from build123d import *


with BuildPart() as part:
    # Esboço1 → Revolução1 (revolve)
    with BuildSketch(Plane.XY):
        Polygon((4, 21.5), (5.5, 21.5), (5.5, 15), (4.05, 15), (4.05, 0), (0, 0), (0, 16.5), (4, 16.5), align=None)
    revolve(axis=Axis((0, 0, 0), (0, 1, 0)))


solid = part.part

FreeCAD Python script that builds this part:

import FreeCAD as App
import Part
import Sketcher

V = App.Vector
Q = App.Units.Quantity

doc = App.newDocument("Part")
body = doc.addObject("PartDesign::Body", "Body")

# Sketch on XY plane
sketch1 = body.newObject("Sketcher::SketchObject", "Sketch")
sketch1.AttachmentSupport = (doc.getObject("XY_Plane"), [""])
sketch1.MapMode = "FlatFace"
sketch1.addGeometry(Part.LineSegment(V(5.5, 21.5, 0), V(4, 21.5, 0)), False)
sketch1.addGeometry(Part.LineSegment(V(4, 21.5, 0), V(4, 16.5, 0)), False)
sketch1.addGeometry(Part.LineSegment(V(4, 16.5, 0), V(0, 16.5, 0)), False)
sketch1.addGeometry(Part.LineSegment(V(0, 16.5, 0), V(0, 0, 0)), False)
sketch1.addGeometry(Part.LineSegment(V(0, 0, 0), V(4.05, 0, 0)), False)
sketch1.addGeometry(Part.LineSegment(V(4.05, 0, 0), V(4.05, 15, 0)), False)
sketch1.addGeometry(Part.LineSegment(V(4.05, 15, 0), V(5.5, 15, 0)), False)
sketch1.addGeometry(Part.LineSegment(V(5.5, 15, 0), V(5.5, 21.5, 0)), False)
sketch1.addConstraint(Sketcher.Constraint("Coincident", 0, 2, 1, 1))
sketch1.addConstraint(Sketcher.Constraint("Coincident", 1, 2, 2, 1))
sketch1.addConstraint(Sketcher.Constraint("Coincident", 2, 2, 3, 1))
sketch1.addConstraint(Sketcher.Constraint("Coincident", 3, 2, 4, 1))
sketch1.addConstraint(Sketcher.Constraint("Coincident", 4, 2, 5, 1))
sketch1.addConstraint(Sketcher.Constraint("Coincident", 5, 2, 6, 1))
sketch1.addConstraint(Sketcher.Constraint("Coincident", 6, 2, 7, 1))
sketch1.addConstraint(Sketcher.Constraint("Coincident", 7, 2, 0, 1))
sketch1.addConstraint(Sketcher.Constraint("Horizontal", 0))
sketch1.addConstraint(Sketcher.Constraint("Vertical", 1))
sketch1.addConstraint(Sketcher.Constraint("Horizontal", 2))
sketch1.addConstraint(Sketcher.Constraint("Vertical", 3))
sketch1.addConstraint(Sketcher.Constraint("Horizontal", 4))
sketch1.addConstraint(Sketcher.Constraint("Vertical", 5))
sketch1.addConstraint(Sketcher.Constraint("Horizontal", 6))
sketch1.addConstraint(Sketcher.Constraint("Vertical", 7))
sketch1.addConstraint(Sketcher.Constraint("Coincident", 3, 2, -1, 1))
sketch1.addConstraint(Sketcher.Constraint("DistanceX", 2, 2, 2, 1, Q("4 mm")))
sketch1.addConstraint(Sketcher.Constraint("DistanceY", 1, 2, 1, 1, Q("5 mm")))
sketch1.addConstraint(Sketcher.Constraint("DistanceY", 5, 1, 5, 2, Q("15 mm")))
sketch1.addConstraint(Sketcher.Constraint("DistanceX", 0, 2, 0, 1, Q("1.5 mm")))
sketch1.addConstraint(Sketcher.Constraint("DistanceY", 3, 2, 3, 1, Q("16.5 mm")))
sketch1.addConstraint(Sketcher.Constraint("DistanceX", 4, 1, 4, 2, Q("4.05 mm")))
revolution = body.newObject("PartDesign::Revolution", "Revolution")
revolution.Profile = sketch1
revolution.ReferenceAxis = (sketch1, ["V_Axis"])
revolution.Angle = 360

doc.recompute()
